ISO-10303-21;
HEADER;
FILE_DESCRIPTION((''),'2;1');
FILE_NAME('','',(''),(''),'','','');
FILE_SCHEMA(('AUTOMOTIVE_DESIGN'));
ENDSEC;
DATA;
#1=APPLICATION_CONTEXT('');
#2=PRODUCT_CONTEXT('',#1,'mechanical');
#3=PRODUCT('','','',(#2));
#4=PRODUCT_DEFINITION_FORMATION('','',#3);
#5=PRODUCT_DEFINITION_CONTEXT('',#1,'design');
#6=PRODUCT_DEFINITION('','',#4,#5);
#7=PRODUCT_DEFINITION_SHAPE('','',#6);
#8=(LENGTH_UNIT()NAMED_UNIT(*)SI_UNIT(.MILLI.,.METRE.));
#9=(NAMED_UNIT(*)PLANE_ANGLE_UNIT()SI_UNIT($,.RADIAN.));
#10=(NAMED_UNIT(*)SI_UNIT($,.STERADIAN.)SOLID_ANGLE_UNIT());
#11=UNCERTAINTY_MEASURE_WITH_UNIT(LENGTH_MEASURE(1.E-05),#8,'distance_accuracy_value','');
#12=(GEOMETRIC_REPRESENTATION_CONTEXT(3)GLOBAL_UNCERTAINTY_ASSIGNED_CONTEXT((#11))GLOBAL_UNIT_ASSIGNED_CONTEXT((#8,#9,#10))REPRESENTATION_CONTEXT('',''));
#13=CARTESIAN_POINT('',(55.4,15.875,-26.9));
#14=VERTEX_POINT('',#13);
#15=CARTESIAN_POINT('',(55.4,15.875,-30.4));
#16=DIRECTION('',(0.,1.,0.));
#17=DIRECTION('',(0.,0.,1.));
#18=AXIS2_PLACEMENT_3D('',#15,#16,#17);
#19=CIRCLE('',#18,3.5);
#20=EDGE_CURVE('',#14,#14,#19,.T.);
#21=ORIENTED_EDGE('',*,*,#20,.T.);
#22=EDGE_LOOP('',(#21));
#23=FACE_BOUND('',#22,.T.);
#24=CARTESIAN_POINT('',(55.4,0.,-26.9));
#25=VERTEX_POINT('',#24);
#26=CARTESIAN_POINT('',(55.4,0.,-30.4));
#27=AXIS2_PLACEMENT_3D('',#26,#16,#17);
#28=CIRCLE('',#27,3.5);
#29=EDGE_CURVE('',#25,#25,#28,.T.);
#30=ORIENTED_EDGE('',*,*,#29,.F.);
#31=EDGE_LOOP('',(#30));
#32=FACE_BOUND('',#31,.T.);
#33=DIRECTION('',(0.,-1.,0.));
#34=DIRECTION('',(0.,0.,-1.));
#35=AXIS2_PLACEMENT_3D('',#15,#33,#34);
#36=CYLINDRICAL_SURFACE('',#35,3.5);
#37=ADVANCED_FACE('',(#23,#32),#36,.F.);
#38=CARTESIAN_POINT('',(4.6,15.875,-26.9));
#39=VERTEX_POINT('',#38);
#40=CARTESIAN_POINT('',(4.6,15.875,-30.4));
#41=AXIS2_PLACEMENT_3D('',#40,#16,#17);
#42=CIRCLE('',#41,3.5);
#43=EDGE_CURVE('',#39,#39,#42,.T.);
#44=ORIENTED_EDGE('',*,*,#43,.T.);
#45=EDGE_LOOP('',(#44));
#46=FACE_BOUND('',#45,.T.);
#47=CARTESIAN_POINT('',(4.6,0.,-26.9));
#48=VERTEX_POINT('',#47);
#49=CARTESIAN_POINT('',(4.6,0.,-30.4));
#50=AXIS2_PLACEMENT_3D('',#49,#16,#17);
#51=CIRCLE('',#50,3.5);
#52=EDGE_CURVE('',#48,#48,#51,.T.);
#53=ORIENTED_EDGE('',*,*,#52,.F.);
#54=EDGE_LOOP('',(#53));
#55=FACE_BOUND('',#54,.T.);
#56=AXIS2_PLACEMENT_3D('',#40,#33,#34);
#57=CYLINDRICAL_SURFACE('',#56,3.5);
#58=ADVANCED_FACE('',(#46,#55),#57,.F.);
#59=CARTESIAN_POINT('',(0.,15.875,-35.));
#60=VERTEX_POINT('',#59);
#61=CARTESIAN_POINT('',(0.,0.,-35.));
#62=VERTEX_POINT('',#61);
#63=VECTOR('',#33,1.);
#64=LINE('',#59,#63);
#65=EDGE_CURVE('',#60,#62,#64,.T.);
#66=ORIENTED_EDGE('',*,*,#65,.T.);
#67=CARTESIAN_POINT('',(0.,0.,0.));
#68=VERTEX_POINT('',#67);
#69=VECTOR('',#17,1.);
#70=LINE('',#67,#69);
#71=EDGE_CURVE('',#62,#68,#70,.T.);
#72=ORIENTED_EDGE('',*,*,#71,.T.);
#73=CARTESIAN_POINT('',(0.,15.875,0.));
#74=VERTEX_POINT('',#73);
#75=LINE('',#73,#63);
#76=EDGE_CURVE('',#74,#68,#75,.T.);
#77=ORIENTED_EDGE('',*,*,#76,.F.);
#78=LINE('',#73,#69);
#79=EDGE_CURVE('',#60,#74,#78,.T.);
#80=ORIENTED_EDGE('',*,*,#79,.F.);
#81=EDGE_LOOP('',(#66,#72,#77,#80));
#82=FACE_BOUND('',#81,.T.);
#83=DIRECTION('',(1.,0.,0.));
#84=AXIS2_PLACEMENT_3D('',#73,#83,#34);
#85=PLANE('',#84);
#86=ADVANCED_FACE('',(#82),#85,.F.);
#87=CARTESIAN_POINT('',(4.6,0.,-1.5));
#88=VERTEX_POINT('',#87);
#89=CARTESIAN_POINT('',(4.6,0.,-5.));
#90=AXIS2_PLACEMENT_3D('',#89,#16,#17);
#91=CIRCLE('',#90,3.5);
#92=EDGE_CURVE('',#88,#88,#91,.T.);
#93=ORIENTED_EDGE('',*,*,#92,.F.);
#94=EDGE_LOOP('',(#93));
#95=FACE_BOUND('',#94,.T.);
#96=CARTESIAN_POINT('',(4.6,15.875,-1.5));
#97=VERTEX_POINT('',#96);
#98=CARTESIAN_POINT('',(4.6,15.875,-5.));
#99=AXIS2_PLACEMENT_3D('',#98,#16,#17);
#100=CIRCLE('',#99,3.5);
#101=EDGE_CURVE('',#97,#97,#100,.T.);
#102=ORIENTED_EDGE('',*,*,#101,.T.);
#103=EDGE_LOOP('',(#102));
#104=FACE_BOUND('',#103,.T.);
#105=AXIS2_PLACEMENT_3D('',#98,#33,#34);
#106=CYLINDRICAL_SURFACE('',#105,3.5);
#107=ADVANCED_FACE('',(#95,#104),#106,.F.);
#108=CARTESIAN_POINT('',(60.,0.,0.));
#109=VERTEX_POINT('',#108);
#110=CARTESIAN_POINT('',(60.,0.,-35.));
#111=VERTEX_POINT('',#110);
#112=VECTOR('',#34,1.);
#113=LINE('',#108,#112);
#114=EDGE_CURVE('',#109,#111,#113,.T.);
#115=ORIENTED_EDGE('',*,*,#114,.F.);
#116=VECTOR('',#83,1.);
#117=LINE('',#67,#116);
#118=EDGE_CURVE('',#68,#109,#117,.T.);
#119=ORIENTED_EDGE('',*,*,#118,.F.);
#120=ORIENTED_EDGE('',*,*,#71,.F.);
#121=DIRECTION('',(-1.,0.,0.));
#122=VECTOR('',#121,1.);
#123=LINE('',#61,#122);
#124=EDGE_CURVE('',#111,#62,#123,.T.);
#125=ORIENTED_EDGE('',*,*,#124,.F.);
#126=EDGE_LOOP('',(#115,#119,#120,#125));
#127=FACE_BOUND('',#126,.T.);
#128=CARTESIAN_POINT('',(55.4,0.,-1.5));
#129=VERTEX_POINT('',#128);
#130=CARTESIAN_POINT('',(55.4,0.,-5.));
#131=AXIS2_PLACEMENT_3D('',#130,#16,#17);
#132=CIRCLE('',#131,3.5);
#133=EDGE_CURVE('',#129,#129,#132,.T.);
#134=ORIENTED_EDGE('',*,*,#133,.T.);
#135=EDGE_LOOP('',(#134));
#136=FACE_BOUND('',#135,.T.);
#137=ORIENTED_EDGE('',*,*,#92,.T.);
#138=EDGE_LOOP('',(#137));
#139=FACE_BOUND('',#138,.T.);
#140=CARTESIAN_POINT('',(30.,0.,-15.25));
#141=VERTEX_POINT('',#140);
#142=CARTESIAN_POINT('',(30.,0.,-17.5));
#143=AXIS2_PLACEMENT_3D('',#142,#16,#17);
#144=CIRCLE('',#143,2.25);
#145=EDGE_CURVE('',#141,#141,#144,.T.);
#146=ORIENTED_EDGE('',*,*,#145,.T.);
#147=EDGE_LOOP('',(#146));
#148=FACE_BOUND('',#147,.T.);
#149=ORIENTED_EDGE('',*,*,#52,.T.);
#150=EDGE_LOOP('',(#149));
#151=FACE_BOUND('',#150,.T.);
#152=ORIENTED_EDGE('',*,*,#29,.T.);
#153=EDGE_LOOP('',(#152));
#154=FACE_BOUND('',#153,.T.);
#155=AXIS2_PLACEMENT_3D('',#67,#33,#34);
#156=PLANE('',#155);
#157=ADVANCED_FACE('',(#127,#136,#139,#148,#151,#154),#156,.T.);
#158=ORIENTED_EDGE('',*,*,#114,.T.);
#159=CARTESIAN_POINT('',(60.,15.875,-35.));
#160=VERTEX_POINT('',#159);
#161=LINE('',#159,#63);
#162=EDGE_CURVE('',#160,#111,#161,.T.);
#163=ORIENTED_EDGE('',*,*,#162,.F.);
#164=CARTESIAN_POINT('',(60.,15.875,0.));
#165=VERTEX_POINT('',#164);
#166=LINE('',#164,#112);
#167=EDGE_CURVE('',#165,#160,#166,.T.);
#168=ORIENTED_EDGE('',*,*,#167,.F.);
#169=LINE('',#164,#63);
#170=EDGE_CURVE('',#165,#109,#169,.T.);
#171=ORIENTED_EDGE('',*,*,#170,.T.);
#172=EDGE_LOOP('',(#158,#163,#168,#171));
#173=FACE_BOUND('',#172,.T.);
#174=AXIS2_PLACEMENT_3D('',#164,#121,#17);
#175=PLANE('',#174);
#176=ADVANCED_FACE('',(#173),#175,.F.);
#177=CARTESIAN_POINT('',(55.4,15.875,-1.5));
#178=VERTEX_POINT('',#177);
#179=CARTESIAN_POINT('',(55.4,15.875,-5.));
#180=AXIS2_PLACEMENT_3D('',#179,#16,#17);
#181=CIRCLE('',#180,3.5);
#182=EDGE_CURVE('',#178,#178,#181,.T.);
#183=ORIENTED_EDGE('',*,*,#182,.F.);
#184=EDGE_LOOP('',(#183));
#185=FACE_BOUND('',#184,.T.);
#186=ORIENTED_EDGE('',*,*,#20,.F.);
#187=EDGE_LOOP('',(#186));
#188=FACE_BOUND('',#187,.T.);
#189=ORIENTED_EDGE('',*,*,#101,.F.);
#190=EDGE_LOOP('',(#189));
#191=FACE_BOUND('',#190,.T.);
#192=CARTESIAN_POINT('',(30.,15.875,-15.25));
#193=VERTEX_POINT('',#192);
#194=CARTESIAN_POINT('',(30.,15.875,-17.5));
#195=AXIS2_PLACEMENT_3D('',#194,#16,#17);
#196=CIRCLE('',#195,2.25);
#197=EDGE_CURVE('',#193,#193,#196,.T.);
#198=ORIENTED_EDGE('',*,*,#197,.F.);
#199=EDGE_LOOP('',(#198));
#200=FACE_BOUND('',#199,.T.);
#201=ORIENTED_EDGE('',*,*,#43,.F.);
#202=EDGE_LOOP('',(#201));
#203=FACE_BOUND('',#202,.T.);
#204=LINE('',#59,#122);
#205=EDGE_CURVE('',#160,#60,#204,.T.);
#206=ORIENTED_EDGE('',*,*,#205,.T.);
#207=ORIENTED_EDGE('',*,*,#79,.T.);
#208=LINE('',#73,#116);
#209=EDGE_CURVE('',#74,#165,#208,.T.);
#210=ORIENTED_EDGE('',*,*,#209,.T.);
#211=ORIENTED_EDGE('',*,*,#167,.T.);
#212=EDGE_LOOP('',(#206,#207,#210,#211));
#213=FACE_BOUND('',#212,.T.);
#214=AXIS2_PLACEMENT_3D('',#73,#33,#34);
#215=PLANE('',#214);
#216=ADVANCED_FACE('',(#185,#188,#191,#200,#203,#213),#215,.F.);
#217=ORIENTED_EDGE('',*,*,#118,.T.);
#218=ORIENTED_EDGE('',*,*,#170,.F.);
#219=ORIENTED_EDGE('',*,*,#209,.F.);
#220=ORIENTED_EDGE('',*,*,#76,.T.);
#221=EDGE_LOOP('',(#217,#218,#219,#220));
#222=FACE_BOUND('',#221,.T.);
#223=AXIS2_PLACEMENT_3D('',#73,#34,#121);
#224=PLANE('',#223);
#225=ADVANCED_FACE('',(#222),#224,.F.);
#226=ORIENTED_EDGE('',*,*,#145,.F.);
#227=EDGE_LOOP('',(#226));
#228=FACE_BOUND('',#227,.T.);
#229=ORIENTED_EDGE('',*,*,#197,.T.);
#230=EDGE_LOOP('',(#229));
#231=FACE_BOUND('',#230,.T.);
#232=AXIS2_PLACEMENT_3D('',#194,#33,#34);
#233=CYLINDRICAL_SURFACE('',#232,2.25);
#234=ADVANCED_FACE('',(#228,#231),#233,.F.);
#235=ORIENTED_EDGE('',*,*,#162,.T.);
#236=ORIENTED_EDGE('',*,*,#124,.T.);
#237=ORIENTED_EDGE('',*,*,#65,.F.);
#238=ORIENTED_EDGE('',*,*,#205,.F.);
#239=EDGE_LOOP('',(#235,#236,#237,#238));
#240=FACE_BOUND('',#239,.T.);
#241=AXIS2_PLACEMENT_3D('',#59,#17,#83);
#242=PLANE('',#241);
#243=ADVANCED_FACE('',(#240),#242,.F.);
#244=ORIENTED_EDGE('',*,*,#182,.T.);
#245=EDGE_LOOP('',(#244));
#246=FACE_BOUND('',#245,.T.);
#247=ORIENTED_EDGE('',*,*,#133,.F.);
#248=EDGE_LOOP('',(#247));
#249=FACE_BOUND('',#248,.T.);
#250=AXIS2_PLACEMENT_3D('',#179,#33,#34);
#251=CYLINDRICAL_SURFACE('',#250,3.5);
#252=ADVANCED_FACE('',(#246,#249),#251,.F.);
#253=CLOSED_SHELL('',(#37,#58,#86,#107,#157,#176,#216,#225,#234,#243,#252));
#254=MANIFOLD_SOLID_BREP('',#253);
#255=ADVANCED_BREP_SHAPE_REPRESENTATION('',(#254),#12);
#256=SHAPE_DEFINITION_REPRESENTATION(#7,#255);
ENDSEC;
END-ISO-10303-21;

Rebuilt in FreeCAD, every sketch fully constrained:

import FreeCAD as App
import Part
import Sketcher
from FreeCAD import Vector

doc = App.newDocument("Part")
body = doc.addObject("PartDesign::Body", "Body")

sketch1 = body.newObject("Sketcher::SketchObject", "Sketch")
sketch1.AttachmentSupport = (doc.getObject("XZ_Plane"), [""])
sketch1.MapMode = "FlatFace"
sketch1.addGeometry(Part.LineSegment(Vector(0, -35, 0), Vector(0, 0, 0)), False)
sketch1.addGeometry(Part.LineSegment(Vector(0, 0, 0), Vector(60, 0, 0)), False)
sketch1.addGeometry(Part.LineSegment(Vector(60, 0, 0), Vector(60, -35, 0)), False)
sketch1.addGeometry(Part.LineSegment(Vector(60, -35, 0), Vector(0, -35, 0)), False)
sketch1.addGeometry(Part.Circle(Vector(4.6, -5, 0), Vector(0, 0, 1), 3.5), False)
sketch1.addGeometry(Part.Circle(Vector(55.4, -5, 0), Vector(0, 0, 1), 3.5), False)
sketch1.addGeometry(Part.Circle(Vector(30, -17.5, 0), Vector(0, 0, 1), 2.2), False)
sketch1.addGeometry(Part.Circle(Vector(4.6, -30.4, 0), Vector(0, 0, 1), 3.5), False)
sketch1.addGeometry(Part.Circle(Vector(55.4, -30.4, 0), Vector(0, 0, 1), 3.5), False)
sketch1.addConstraint(Sketcher.Constraint("Coincident", 0, 2, 1, 1))
sketch1.addConstraint(Sketcher.Constraint("Coincident", 1, 2, 2, 1))
sketch1.addConstraint(Sketcher.Constraint("Coincident", 2, 2, 3, 1))
sketch1.addConstraint(Sketcher.Constraint("Coincident", 3, 2, 0, 1))
sketch1.addConstraint(Sketcher.Constraint("Vertical", 0))
sketch1.addConstraint(Sketcher.Constraint("Horizontal", 1))
sketch1.addConstraint(Sketcher.Constraint("Vertical", 2))
sketch1.addConstraint(Sketcher.Constraint("Horizontal", 3))
sketch1.addConstraint(Sketcher.Constraint("Coincident", 0, 2, -1, 1))
sketch1.addConstraint(Sketcher.Constraint("Equal", 4, 5))
sketch1.addConstraint(Sketcher.Constraint("Equal", 5, 7))
sketch1.addConstraint(Sketcher.Constraint("Equal", 7, 8))
sketch1.addConstraint(Sketcher.Constraint("Horizontal", 4, 3, 5, 3))
sketch1.addConstraint(Sketcher.Constraint("Horizontal", 7, 3, 8, 3))
sketch1.addConstraint(Sketcher.Constraint("Vertical", 4, 3, 7, 3))
sketch1.addConstraint(Sketcher.Constraint("Vertical", 5, 3, 8, 3))
sketch1.addConstraint(Sketcher.Constraint("Diameter", 4, 7.0))
sketch1.addConstraint(Sketcher.Constraint("Diameter", 6, 4.5))
sketch1.addConstraint(Sketcher.Constraint("DistanceX", 1, 1, 1, 2, 60.0))
sketch1.addConstraint(Sketcher.Constraint("DistanceY", 0, 1, 0, 2, 35.0))
sketch1.addConstraint(Sketcher.Constraint("DistanceY", 4, 3, -1, 1, 5.0))
sketch1.addConstraint(Sketcher.Constraint("DistanceX", -1, 1, 6, 3, 30.0))
sketch1.addConstraint(Sketcher.Constraint("DistanceX", -1, 1, 4, 3, 4.6))
sketch1.addConstraint(Sketcher.Constraint("DistanceX", -1, 1, 5, 3, 55.4))
sketch1.addConstraint(Sketcher.Constraint("DistanceY", 6, 3, -1, 1, 17.5))
sketch1.addConstraint(Sketcher.Constraint("DistanceY", 7, 3, -1, 1, 30.4))
pad1 = body.newObject("PartDesign::Pad", "Pad")
pad1.Profile = sketch1
pad1.Length = 15.875
pad1.Reversed = True

doc.recompute()
